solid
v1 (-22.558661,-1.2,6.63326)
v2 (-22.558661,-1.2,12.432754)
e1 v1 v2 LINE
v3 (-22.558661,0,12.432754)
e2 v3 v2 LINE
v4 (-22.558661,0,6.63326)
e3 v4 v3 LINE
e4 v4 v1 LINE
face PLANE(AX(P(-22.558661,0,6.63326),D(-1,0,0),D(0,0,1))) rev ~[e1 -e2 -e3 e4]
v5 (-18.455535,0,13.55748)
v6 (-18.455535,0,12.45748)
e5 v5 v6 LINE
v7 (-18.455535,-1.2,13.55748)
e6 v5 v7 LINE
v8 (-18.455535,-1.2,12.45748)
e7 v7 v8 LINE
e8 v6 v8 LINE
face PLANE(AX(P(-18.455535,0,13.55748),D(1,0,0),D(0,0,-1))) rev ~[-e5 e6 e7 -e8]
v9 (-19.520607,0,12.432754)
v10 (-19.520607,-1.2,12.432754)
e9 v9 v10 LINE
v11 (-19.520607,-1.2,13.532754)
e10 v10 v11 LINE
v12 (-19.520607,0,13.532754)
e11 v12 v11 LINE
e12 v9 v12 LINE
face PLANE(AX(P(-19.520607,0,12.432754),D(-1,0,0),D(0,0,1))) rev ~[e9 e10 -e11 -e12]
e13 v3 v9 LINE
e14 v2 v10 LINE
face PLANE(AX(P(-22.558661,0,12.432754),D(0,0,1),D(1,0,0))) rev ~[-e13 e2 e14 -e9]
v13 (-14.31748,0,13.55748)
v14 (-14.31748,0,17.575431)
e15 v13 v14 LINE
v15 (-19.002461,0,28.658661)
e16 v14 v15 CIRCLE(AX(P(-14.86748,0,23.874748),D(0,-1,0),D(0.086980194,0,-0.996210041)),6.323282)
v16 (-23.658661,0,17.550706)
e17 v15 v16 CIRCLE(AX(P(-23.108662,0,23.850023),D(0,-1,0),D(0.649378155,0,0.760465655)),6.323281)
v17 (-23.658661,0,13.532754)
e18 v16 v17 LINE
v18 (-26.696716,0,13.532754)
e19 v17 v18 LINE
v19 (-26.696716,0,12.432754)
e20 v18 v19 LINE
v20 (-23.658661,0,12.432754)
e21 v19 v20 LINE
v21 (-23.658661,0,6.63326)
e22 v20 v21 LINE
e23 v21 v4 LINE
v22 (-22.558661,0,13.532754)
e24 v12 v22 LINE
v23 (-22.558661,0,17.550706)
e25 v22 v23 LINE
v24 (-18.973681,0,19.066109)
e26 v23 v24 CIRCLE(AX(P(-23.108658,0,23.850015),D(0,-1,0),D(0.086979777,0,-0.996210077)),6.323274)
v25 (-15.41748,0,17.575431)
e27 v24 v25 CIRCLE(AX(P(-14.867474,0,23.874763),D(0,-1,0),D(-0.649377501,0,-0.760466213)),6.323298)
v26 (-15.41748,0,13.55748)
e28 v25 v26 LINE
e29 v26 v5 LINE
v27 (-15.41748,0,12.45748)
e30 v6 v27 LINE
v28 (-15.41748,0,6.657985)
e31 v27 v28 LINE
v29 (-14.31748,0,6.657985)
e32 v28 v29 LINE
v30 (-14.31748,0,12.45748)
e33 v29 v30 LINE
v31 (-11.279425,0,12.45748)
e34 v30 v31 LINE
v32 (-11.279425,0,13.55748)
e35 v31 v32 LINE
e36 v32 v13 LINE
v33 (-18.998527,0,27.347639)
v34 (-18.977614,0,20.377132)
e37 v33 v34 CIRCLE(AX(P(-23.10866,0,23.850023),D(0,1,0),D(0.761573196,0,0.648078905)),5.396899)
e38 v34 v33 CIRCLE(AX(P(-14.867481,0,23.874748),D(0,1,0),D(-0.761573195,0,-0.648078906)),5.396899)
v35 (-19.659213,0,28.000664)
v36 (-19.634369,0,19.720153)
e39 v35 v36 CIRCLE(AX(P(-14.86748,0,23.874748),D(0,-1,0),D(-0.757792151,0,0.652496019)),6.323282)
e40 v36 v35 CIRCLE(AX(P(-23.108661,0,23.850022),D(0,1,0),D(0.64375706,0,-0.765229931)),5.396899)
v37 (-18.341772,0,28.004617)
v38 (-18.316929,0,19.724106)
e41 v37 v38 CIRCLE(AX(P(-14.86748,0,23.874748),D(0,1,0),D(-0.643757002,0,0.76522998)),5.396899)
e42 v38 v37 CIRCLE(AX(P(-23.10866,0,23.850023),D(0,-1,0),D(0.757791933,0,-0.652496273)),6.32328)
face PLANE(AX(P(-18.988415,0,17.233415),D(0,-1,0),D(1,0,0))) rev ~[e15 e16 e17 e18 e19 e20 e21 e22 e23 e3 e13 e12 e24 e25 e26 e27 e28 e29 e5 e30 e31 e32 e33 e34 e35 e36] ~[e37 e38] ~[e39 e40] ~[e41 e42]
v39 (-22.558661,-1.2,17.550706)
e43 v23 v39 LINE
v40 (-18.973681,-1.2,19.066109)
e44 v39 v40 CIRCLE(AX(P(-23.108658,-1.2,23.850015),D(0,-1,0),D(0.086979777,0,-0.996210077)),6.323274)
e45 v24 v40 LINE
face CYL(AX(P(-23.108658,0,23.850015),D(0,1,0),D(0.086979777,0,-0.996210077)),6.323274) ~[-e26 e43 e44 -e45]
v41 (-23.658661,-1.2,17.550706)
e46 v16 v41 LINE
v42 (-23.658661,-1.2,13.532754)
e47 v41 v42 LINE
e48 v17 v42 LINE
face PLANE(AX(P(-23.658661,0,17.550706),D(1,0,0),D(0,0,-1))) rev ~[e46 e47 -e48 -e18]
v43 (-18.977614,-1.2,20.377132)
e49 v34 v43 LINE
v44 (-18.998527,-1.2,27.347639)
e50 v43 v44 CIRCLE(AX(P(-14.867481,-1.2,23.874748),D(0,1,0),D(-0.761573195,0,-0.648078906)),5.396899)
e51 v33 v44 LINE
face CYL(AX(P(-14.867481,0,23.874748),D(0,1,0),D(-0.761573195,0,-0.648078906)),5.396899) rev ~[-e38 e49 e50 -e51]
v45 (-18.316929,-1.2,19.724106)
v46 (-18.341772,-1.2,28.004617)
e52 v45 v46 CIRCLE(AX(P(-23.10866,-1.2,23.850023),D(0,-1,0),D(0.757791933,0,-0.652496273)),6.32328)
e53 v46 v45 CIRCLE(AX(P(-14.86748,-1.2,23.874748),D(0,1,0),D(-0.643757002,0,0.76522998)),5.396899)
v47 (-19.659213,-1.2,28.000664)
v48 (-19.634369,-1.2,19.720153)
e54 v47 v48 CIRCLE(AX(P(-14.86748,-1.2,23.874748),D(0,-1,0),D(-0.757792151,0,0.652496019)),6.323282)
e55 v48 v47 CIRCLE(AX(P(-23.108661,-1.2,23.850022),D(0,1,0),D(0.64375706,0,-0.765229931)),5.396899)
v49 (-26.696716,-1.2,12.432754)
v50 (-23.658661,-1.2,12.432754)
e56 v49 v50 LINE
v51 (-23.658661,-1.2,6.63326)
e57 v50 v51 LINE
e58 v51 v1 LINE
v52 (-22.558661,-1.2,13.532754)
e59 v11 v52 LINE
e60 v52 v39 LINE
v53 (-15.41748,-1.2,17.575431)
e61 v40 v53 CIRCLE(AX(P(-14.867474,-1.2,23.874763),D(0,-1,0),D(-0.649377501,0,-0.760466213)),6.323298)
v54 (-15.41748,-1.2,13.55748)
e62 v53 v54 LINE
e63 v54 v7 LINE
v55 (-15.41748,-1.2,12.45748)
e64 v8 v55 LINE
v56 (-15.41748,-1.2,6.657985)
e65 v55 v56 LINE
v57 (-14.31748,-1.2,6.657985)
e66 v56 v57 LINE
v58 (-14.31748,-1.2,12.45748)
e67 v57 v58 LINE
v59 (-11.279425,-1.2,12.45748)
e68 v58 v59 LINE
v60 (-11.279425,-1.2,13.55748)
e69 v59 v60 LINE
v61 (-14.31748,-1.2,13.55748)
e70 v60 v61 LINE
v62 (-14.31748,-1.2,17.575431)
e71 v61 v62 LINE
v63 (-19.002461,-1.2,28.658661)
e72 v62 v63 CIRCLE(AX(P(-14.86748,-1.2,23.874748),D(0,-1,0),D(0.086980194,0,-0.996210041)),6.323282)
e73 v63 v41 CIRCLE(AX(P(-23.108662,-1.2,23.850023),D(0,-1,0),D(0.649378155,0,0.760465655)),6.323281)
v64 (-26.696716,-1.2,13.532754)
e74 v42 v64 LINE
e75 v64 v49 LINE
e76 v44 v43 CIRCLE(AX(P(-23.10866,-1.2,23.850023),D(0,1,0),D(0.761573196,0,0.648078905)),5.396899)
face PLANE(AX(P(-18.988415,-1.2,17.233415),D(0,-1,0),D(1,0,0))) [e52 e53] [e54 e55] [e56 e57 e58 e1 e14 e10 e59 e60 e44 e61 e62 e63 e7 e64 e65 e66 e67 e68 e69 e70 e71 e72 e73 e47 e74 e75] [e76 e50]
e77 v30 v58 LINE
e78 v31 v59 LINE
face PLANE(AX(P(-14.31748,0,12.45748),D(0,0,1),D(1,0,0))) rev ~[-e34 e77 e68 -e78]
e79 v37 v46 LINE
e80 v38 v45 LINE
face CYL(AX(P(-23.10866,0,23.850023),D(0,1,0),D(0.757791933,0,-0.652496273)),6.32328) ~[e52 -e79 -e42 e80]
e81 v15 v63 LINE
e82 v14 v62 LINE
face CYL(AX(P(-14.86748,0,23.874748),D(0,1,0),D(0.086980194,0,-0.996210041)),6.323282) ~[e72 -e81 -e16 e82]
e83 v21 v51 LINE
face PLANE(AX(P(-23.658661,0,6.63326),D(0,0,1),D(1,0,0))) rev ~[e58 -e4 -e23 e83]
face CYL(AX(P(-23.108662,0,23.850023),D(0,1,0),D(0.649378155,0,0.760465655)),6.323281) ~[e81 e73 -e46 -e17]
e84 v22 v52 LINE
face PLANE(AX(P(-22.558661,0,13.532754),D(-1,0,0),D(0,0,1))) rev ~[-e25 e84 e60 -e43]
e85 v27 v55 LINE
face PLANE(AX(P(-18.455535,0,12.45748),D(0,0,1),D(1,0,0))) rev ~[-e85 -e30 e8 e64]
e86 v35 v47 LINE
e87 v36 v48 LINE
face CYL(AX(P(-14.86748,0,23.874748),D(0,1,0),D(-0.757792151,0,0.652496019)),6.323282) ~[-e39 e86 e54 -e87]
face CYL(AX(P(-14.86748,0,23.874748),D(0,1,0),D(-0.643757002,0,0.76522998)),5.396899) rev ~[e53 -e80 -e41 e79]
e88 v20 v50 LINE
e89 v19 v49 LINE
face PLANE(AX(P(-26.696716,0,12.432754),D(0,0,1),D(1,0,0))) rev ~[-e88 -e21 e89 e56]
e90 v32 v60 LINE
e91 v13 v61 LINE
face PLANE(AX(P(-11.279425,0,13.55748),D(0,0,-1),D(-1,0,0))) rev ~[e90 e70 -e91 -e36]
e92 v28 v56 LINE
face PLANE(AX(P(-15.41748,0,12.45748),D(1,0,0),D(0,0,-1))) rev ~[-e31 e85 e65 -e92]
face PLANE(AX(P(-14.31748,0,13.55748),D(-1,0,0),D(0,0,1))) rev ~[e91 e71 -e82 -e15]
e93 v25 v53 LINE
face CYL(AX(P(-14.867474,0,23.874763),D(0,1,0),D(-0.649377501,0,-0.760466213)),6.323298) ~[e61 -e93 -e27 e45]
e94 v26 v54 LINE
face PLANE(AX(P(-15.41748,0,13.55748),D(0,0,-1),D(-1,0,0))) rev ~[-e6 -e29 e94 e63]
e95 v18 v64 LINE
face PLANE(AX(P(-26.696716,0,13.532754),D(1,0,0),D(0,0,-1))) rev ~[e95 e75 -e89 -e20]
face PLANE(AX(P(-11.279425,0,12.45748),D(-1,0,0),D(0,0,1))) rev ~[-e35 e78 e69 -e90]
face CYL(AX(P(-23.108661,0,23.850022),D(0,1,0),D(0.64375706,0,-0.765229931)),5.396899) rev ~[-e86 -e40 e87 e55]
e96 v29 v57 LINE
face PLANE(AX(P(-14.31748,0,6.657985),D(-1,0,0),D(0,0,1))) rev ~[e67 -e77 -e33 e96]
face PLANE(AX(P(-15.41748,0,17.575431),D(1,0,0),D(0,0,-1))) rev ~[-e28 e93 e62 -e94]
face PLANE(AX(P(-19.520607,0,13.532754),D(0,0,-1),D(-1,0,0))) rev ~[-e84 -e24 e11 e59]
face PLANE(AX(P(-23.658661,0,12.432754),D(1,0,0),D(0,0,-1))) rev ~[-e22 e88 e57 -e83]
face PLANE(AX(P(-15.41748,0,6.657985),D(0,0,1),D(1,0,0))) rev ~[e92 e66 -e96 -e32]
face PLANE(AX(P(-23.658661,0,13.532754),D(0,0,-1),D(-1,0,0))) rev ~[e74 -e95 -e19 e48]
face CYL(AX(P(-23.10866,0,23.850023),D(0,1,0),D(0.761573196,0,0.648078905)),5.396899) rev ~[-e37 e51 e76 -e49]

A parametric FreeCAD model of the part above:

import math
import FreeCAD as App
import Part
import Sketcher
from FreeCAD import Vector

doc = App.newDocument("Part")
body = doc.addObject("PartDesign::Body", "Body")

sketch1 = body.newObject("Sketcher::SketchObject", "Sketch")
sketch1.AttachmentSupport = (doc.getObject("XZ_Plane"), [""])
sketch1.MapMode = "FlatFace"
sketch1.addGeometry(Part.LineSegment(Vector(-22.558661, 13.532754, 0), Vector(-22.558661, 17.550706, 0)), False)
sketch1.addGeometry(Part.ArcOfCircle(Part.Circle(Vector(-23.108658, 23.850015, 0), Vector(0, 0, 1), 6.323274), math.radians(-85.010121), math.radians(-49.161452)), False)
sketch1.addGeometry(Part.ArcOfCircle(Part.Circle(Vector(-14.867474, 23.874763, 0), Vector(0, 0, 1), 6.323298), math.radians(-130.494685), math.radians(-94.989945)), False)
sketch1.addGeometry(Part.LineSegment(Vector(-15.41748, 17.575431, 0), Vector(-15.41748, 13.55748, 0)), False)
sketch1.addGeometry(Part.LineSegment(Vector(-15.41748, 13.55748, 0), Vector(-18.455535, 13.55748, 0)), False)
sketch1.addGeometry(Part.LineSegment(Vector(-18.455535, 13.55748, 0), Vector(-18.455535, 12.45748, 0)), False)
sketch1.addGeometry(Part.LineSegment(Vector(-18.455535, 12.45748, 0), Vector(-15.41748, 12.45748, 0)), False)
sketch1.addGeometry(Part.LineSegment(Vector(-15.41748, 12.45748, 0), Vector(-15.41748, 6.657985, 0)), False)
sketch1.addGeometry(Part.LineSegment(Vector(-15.41748, 6.657985, 0), Vector(-14.31748, 6.657985, 0)), False)
sketch1.addGeometry(Part.LineSegment(Vector(-14.31748, 6.657985, 0), Vector(-14.31748, 12.45748, 0)), False)
sketch1.addGeometry(Part.LineSegment(Vector(-14.31748, 12.45748, 0), Vector(-11.279425, 12.45748, 0)), False)
sketch1.addGeometry(Part.LineSegment(Vector(-11.279425, 12.45748, 0), Vector(-11.279425, 13.55748, 0)), False)
sketch1.addGeometry(Part.LineSegment(Vector(-11.279425, 13.55748, 0), Vector(-14.31748, 13.55748, 0)), False)
sketch1.addGeometry(Part.LineSegment(Vector(-14.31748, 13.55748, 0), Vector(-14.31748, 17.575431, 0)), False)
sketch1.addGeometry(Part.ArcOfCircle(Part.Circle(Vector(-14.86748, 23.874748, 0), Vector(0, 0, 1), 6.323282), math.radians(-85.010097), math.radians(130.838532)), False)
sketch1.addGeometry(Part.ArcOfCircle(Part.Circle(Vector(-23.108662, 23.850023, 0), Vector(0, 0, 1), 6.323281), math.radians(49.505266), math.radians(265.010107)), False)
sketch1.addGeometry(Part.LineSegment(Vector(-23.658661, 17.550706, 0), Vector(-23.658661, 13.532754, 0)), False)
sketch1.addGeometry(Part.LineSegment(Vector(-23.658661, 13.532754, 0), Vector(-26.696716, 13.532754, 0)), False)
sketch1.addGeometry(Part.LineSegment(Vector(-26.696716, 13.532754, 0), Vector(-26.696716, 12.432754, 0)), False)
sketch1.addGeometry(Part.LineSegment(Vector(-26.696716, 12.432754, 0), Vector(-23.658661, 12.432754, 0)), False)
sketch1.addGeometry(Part.LineSegment(Vector(-23.658661, 12.432754, 0), Vector(-23.658661, 6.63326, 0)), False)
sketch1.addGeometry(Part.LineSegment(Vector(-23.658661, 6.63326, 0), Vector(-22.558661, 6.63326, 0)), False)
sketch1.addGeometry(Part.LineSegment(Vector(-22.558661, 6.63326, 0), Vector(-22.558661, 12.432754, 0)), False)
sketch1.addGeometry(Part.LineSegment(Vector(-22.558661, 12.432754, 0), Vector(-19.520607, 12.432754, 0)), False)
sketch1.addGeometry(Part.LineSegment(Vector(-19.520607, 12.432754, 0), Vector(-19.520607, 13.532754, 0)), False)
sketch1.addGeometry(Part.LineSegment(Vector(-19.520607, 13.532754, 0), Vector(-22.558661, 13.532754, 0)), False)
sketch1.addGeometry(Part.ArcOfCircle(Part.Circle(Vector(-14.86748, 23.874748, 0), Vector(0, 0, 1), 6.323282), math.radians(139.269944), math.radians(221.073864)), False)
sketch1.addGeometry(Part.ArcOfCircle(Part.Circle(Vector(-23.108661, 23.850022, 0), Vector(0, 0, 1), 5.396899), math.radians(50.27126), math.radians(310.072548)), False)
sketch1.addGeometry(Part.ArcOfCircle(Part.Circle(Vector(-23.10866, 23.850023, 0), Vector(0, 0, 1), 5.396899), math.radians(-40.053118), math.radians(40.396916)), False)
sketch1.addGeometry(Part.ArcOfCircle(Part.Circle(Vector(-14.867481, 23.874748, 0), Vector(0, 0, 1), 5.396899), math.radians(139.946882), math.radians(220.396916)), False)
sketch1.addGeometry(Part.ArcOfCircle(Part.Circle(Vector(-23.10866, 23.850023, 0), Vector(0, 0, 1), 6.32328), math.radians(-40.730076), math.radians(41.07387)), False)
sketch1.addGeometry(Part.ArcOfCircle(Part.Circle(Vector(-14.86748, 23.874748, 0), Vector(0, 0, 1), 5.396899), math.radians(-129.72875), math.radians(130.072544)), False)
sketch1.addConstraint(Sketcher.Constraint("Coincident", 0, 2, 1, 1))
sketch1.addConstraint(Sketcher.Constraint("Coincident", 1, 2, 2, 1))
sketch1.addConstraint(Sketcher.Constraint("Coincident", 2, 2, 3, 1))
sketch1.addConstraint(Sketcher.Constraint("Coincident", 3, 2, 4, 1))
sketch1.addConstraint(Sketcher.Constraint("Coincident", 4, 2, 5, 1))
sketch1.addConstraint(Sketcher.Constraint("Coincident", 5, 2, 6, 1))
sketch1.addConstraint(Sketcher.Constraint("Coincident", 6, 2, 7, 1))
sketch1.addConstraint(Sketcher.Constraint("Coincident", 7, 2, 8, 1))
sketch1.addConstraint(Sketcher.Constraint("Coincident", 8, 2, 9, 1))
sketch1.addConstraint(Sketcher.Constraint("Coincident", 9, 2, 10, 1))
sketch1.addConstraint(Sketcher.Constraint("Coincident", 10, 2, 11, 1))
sketch1.addConstraint(Sketcher.Constraint("Coincident", 11, 2, 12, 1))
sketch1.addConstraint(Sketcher.Constraint("Coincident", 12, 2, 13, 1))
sketch1.addConstraint(Sketcher.Constraint("Coincident", 13, 2, 14, 1))
sketch1.addConstraint(Sketcher.Constraint("Coincident", 14, 2, 15, 1))
sketch1.addConstraint(Sketcher.Constraint("Coincident", 15, 2, 16, 1))
sketch1.addConstraint(Sketcher.Constraint("Coincident", 16, 2, 17, 1))
sketch1.addConstraint(Sketcher.Constraint("Coincident", 17, 2, 18, 1))
sketch1.addConstraint(Sketcher.Constraint("Coincident", 18, 2, 19, 1))
sketch1.addConstraint(Sketcher.Constraint("Coincident", 19, 2, 20, 1))
sketch1.addConstraint(Sketcher.Constraint("Coincident", 20, 2, 21, 1))
sketch1.addConstraint(Sketcher.Constraint("Coincident", 21, 2, 22, 1))
sketch1.addConstraint(Sketcher.Constraint("Coincident", 22, 2, 23, 1))
sketch1.addConstraint(Sketcher.Constraint("Coincident", 23, 2, 24, 1))
sketch1.addConstraint(Sketcher.Constraint("Coincident", 24, 2, 25, 1))
sketch1.addConstraint(Sketcher.Constraint("Coincident", 25, 2, 0, 1))
sketch1.addConstraint(Sketcher.Constraint("Coincident", 26, 1, 27, 1))
sketch1.addConstraint(Sketcher.Constraint("Coincident", 27, 2, 26, 2))
sketch1.addConstraint(Sketcher.Constraint("Coincident", 28, 1, 29, 2))
sketch1.addConstraint(Sketcher.Constraint("Coincident", 29, 1, 28, 2))
sketch1.addConstraint(Sketcher.Constraint("Coincident", 30, 1, 31, 1))
sketch1.addConstraint(Sketcher.Constraint("Coincident", 31, 2, 30, 2))
sketch1.addConstraint(Sketcher.Constraint("Vertical", 0))
sketch1.addConstraint(Sketcher.Constraint("Vertical", 3))
sketch1.addConstraint(Sketcher.Constraint("Horizontal", 4))
sketch1.addConstraint(Sketcher.Constraint("Vertical", 5))
sketch1.addConstraint(Sketcher.Constraint("Horizontal", 6))
sketch1.addConstraint(Sketcher.Constraint("Vertical", 7))
sketch1.addConstraint(Sketcher.Constraint("Horizontal", 8))
sketch1.addConstraint(Sketcher.Constraint("Vertical", 9))
sketch1.addConstraint(Sketcher.Constraint("Horizontal", 10))
sketch1.addConstraint(Sketcher.Constraint("Vertical", 11))
sketch1.addConstraint(Sketcher.Constraint("Horizontal", 12))
sketch1.addConstraint(Sketcher.Constraint("Vertical", 13))
sketch1.addConstraint(Sketcher.Constraint("Vertical", 16))
sketch1.addConstraint(Sketcher.Constraint("Horizontal", 17))
sketch1.addConstraint(Sketcher.Constraint("Vertical", 18))
sketch1.addConstraint(Sketcher.Constraint("Horizontal", 19))
sketch1.addConstraint(Sketcher.Constraint("Vertical", 20))
sketch1.addConstraint(Sketcher.Constraint("Horizontal", 21))
sketch1.addConstraint(Sketcher.Constraint("Vertical", 22))
sketch1.addConstraint(Sketcher.Constraint("Horizontal", 23))
sketch1.addConstraint(Sketcher.Constraint("Vertical", 24))
sketch1.addConstraint(Sketcher.Constraint("Horizontal", 25))
sketch1.addConstraint(Sketcher.Constraint("Coincident", 15, 3, 1, 3))
sketch1.addConstraint(Sketcher.Constraint("Coincident", 26, 3, 14, 3))
sketch1.addConstraint(Sketcher.Constraint("Coincident", 27, 3, 1, 3))
sketch1.addConstraint(Sketcher.Constraint("Coincident", 28, 3, 1, 3))
sketch1.addConstraint(Sketcher.Constraint("Coincident", 29, 3, 14, 3))
sketch1.addConstraint(Sketcher.Constraint("Coincident", 30, 3, 1, 3))
sketch1.addConstraint(Sketcher.Constraint("Coincident", 31, 3, 14, 3))
sketch1.addConstraint(Sketcher.Constraint("Equal", 14, 15))
sketch1.addConstraint(Sketcher.Constraint("Equal", 15, 26))
sketch1.addConstraint(Sketcher.Constraint("Equal", 27, 28))
sketch1.addConstraint(Sketcher.Constraint("Equal", 28, 29))
sketch1.addConstraint(Sketcher.Constraint("Equal", 26, 30))
sketch1.addConstraint(Sketcher.Constraint("Equal", 29, 31))
sketch1.addConstraint(Sketcher.Constraint("Horizontal", 6, 2, 9, 2))
sketch1.addConstraint(Sketcher.Constraint("Horizontal", 4, 2, 11, 2))
sketch1.addConstraint(Sketcher.Constraint("Horizontal", 2, 2, 13, 2))
sketch1.addConstraint(Sketcher.Constraint("Horizontal", 0, 2, 15, 2))
sketch1.addConstraint(Sketcher.Constraint("Horizontal", 19, 2, 22, 2))
sketch1.addConstraint(Sketcher.Constraint("Horizontal", 17, 2, 24, 2))
sketch1.addConstraint(Sketcher.Constraint("Vertical", 3, 2, 6, 2))
sketch1.addConstraint(Sketcher.Constraint("Vertical", 9, 2, 12, 2))
sketch1.addConstraint(Sketcher.Constraint("Vertical", 16, 2, 19, 2))
sketch1.addConstraint(Sketcher.Constraint("Vertical", 0, 2, 21, 2))
sketch1.addConstraint(Sketcher.Constraint("Equal", 6, 10))
sketch1.addConstraint(Sketcher.Constraint("Equal", 12, 17))
sketch1.addConstraint(Sketcher.Constraint("Equal", 8, 21))
sketch1.addConstraint(Sketcher.Constraint("Equal", 19, 23))
sketch1.addConstraint(Sketcher.Constraint("Equal", 0, 3))
sketch1.addConstraint(Sketcher.Constraint("Equal", 21, 5))
sketch1.addConstraint(Sketcher.Constraint("Equal", 11, 18))
sketch1.addConstraint(Sketcher.Constraint("Equal", 9, 20))
sketch1.addConstraint(Sketcher.Constraint("DistanceX", 8, 1, 8, 2, 1.1))
sketch1.addConstraint(Sketcher.Constraint("Radius", 27, 5.396899))
sketch1.addConstraint(Sketcher.Constraint("Radius", 14, 6.323282))
sketch1.addConstraint(Sketcher.Constraint("DistanceX", 27, 3, 0, 2, 0.55))
sketch1.addConstraint(Sketcher.Constraint("DistanceX", 2, 2, 31, 3, 0.55))
sketch1.addConstraint(Sketcher.Constraint("Radius", 2, 6.323298))
sketch1.addConstraint(Sketcher.Constraint("DistanceY", 3, 2, 3, 1, 4.017951))
sketch1.addConstraint(Sketcher.Constraint("DistanceX", 1, 2, 2, 2, 3.556201))
sketch1.addConstraint(Sketcher.Constraint("DistanceX", 30, 3, 14, 2, 4.106199))
sketch1.addConstraint(Sketcher.Constraint("DistanceY", 2, 2, 28, 1, 2.801701))
sketch1.addConstraint(Sketcher.Constraint("DistanceX", 4, 2, 4, 1, 3.038055))
sketch1.addConstraint(Sketcher.Constraint("DistanceY", 7, 2, 7, 1, 5.799495))
sketch1.addConstraint(Sketcher.Constraint("DistanceX", 14, 3, -1, 1, 14.86748))
sketch1.addConstraint(Sketcher.Constraint("DistanceY", -1, 1, 27, 3, 23.850022))
pad1 = body.newObject("PartDesign::Pad", "Pad")
pad1.Profile = sketch1
pad1.Length = 1.2

doc.recompute()
